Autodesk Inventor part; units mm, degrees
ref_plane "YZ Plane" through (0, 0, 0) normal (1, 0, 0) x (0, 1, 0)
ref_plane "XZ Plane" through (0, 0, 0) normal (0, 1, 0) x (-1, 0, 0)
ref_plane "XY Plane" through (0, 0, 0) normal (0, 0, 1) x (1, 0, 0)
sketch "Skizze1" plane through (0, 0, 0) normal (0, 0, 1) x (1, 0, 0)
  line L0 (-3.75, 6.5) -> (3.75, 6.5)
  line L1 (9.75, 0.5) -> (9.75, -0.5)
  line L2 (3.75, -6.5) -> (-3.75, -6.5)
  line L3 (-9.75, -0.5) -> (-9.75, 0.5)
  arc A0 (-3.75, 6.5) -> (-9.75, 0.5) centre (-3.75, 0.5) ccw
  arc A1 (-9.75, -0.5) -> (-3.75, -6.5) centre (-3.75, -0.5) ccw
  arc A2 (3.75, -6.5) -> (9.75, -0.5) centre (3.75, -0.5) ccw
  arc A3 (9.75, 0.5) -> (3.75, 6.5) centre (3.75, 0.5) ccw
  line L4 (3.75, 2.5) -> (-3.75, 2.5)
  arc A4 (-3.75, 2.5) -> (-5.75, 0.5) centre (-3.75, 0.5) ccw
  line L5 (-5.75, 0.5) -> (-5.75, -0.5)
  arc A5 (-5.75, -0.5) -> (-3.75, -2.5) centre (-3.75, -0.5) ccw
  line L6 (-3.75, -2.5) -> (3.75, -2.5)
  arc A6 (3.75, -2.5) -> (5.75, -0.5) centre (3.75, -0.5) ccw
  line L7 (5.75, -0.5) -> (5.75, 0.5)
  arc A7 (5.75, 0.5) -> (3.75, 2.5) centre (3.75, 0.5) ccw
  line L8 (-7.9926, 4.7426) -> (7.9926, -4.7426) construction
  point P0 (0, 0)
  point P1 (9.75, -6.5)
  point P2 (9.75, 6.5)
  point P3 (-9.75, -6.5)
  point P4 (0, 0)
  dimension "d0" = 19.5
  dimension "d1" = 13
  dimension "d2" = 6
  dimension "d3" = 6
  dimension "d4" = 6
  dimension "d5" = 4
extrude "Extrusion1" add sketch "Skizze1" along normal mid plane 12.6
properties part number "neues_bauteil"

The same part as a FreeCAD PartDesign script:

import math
import FreeCAD as App
import Part
import Sketcher
from FreeCAD import Vector

doc = App.newDocument("Part")
body = doc.addObject("PartDesign::Body", "Body")

# Sketch on XY plane
sketch1 = body.newObject("Sketcher::SketchObject", "Sketch")
sketch1.AttachmentSupport = (doc.getObject("XY_Plane"), [""])
sketch1.MapMode = "FlatFace"
sketch1.addGeometry(Part.LineSegment(Vector(3.8, 6.5, 0), Vector(-3.8, 6.5, 0)), False)
sketch1.addGeometry(Part.ArcOfCircle(Part.Circle(Vector(-3.8, 0.5, 0), Vector(0, 0, 1), 6), math.radians(90), math.radians(180)), False)
sketch1.addGeometry(Part.LineSegment(Vector(-9.8, 0.5, 0), Vector(-9.8, -0.5, 0)), False)
sketch1.addGeometry(Part.ArcOfCircle(Part.Circle(Vector(-3.8, -0.5, 0), Vector(0, 0, 1), 6), math.radians(180), math.radians(270)), False)
sketch1.addGeometry(Part.LineSegment(Vector(-3.8, -6.5, 0), Vector(3.8, -6.5, 0)), False)
sketch1.addGeometry(Part.ArcOfCircle(Part.Circle(Vector(3.8, -0.5, 0), Vector(0, 0, 1), 6), math.radians(-90), math.radians(0)), False)
sketch1.addGeometry(Part.LineSegment(Vector(9.8, -0.5, 0), Vector(9.8, 0.5, 0)), False)
sketch1.addGeometry(Part.ArcOfCircle(Part.Circle(Vector(3.8, 0.5, 0), Vector(0, 0, 1), 6), math.radians(0), math.radians(90)), False)
sketch1.addGeometry(Part.LineSegment(Vector(-3.8, 2.5, 0), Vector(3.8, 2.5, 0)), False)
sketch1.addGeometry(Part.ArcOfCircle(Part.Circle(Vector(3.8, 0.5, 0), Vector(0, 0, 1), 2), math.radians(0), math.radians(90)), False)
sketch1.addGeometry(Part.LineSegment(Vector(5.8, 0.5, 0), Vector(5.8, -0.5, 0)), False)
sketch1.addGeometry(Part.ArcOfCircle(Part.Circle(Vector(3.8, -0.5, 0), Vector(0, 0, 1), 2), math.radians(-90), math.radians(0)), False)
sketch1.addGeometry(Part.LineSegment(Vector(3.8, -2.5, 0), Vector(-3.8, -2.5, 0)), False)
sketch1.addGeometry(Part.ArcOfCircle(Part.Circle(Vector(-3.8, -0.5, 0), Vector(0, 0, 1), 2), math.radians(180), math.radians(270)), False)
sketch1.addGeometry(Part.LineSegment(Vector(-5.8, -0.5, 0), Vector(-5.8, 0.5, 0)), False)
sketch1.addGeometry(Part.ArcOfCircle(Part.Circle(Vector(-3.8, 0.5, 0), Vector(0, 0, 1), 2), math.radians(90), math.radians(180)), False)
sketch1.addConstraint(Sketcher.Constraint("Tangent", 0, 2, 1, 1))
sketch1.addConstraint(Sketcher.Constraint("Tangent", 1, 2, 2, 1))
sketch1.addConstraint(Sketcher.Constraint("Tangent", 2, 2, 3, 1))
sketch1.addConstraint(Sketcher.Constraint("Tangent", 3, 2, 4, 1))
sketch1.addConstraint(Sketcher.Constraint("Tangent", 4, 2, 5, 1))
sketch1.addConstraint(Sketcher.Constraint("Tangent", 5, 2, 6, 1))
sketch1.addConstraint(Sketcher.Constraint("Tangent", 6, 2, 7, 1))
sketch1.addConstraint(Sketcher.Constraint("Tangent", 7, 2, 0, 1))
sketch1.addConstraint(Sketcher.Constraint("Tangent", 8, 2, 9, 2))
sketch1.addConstraint(Sketcher.Constraint("Tangent", 9, 1, 10, 1))
sketch1.addConstraint(Sketcher.Constraint("Tangent", 10, 2, 11, 2))
sketch1.addConstraint(Sketcher.Constraint("Tangent", 11, 1, 12, 1))
sketch1.addConstraint(Sketcher.Constraint("Tangent", 12, 2, 13, 2))
sketch1.addConstraint(Sketcher.Constraint("Tangent", 13, 1, 14, 1))
sketch1.addConstraint(Sketcher.Constraint("Tangent", 14, 2, 15, 2))
sketch1.addConstraint(Sketcher.Constraint("Tangent", 15, 1, 8, 1))
sketch1.addConstraint(Sketcher.Constraint("Horizontal", 0))
sketch1.addConstraint(Sketcher.Constraint("Vertical", 2))
sketch1.addConstraint(Sketcher.Constraint("Horizontal", 4))
sketch1.addConstraint(Sketcher.Constraint("Vertical", 6))
sketch1.addConstraint(Sketcher.Constraint("Horizontal", 8))
sketch1.addConstraint(Sketcher.Constraint("Vertical", 10))
sketch1.addConstraint(Sketcher.Constraint("Horizontal", 12))
sketch1.addConstraint(Sketcher.Constraint("Vertical", 14))
sketch1.addConstraint(Sketcher.Constraint("Coincident", 9, 3, 7, 3))
sketch1.addConstraint(Sketcher.Constraint("Coincident", 11, 3, 5, 3))
sketch1.addConstraint(Sketcher.Constraint("Coincident", 13, 3, 3, 3))
sketch1.addConstraint(Sketcher.Constraint("Equal", 1, 3))
sketch1.addConstraint(Sketcher.Constraint("Equal", 3, 5))
sketch1.addConstraint(Sketcher.Constraint("Equal", 5, 7))
sketch1.addConstraint(Sketcher.Constraint("Equal", 13, 15))
sketch1.addConstraint(Sketcher.Constraint("Symmetric", 1, 3, 5, 3, -1, 1))
sketch1.addConstraint(Sketcher.Constraint("Radius", 1, 6.0))
sketch1.addConstraint(Sketcher.Constraint("Radius", 9, 2.0))
sketch1.addConstraint(Sketcher.Constraint("DistanceY", 2, 2, 2, 1, 1.0))
sketch1.addConstraint(Sketcher.Constraint("DistanceX", 0, 2, 0, 1, 7.5))
pad1 = body.newObject("PartDesign::Pad", "Pad")
pad1.Profile = sketch1
pad1.Length = 12.6
pad1.Midplane = True

doc.recompute()
